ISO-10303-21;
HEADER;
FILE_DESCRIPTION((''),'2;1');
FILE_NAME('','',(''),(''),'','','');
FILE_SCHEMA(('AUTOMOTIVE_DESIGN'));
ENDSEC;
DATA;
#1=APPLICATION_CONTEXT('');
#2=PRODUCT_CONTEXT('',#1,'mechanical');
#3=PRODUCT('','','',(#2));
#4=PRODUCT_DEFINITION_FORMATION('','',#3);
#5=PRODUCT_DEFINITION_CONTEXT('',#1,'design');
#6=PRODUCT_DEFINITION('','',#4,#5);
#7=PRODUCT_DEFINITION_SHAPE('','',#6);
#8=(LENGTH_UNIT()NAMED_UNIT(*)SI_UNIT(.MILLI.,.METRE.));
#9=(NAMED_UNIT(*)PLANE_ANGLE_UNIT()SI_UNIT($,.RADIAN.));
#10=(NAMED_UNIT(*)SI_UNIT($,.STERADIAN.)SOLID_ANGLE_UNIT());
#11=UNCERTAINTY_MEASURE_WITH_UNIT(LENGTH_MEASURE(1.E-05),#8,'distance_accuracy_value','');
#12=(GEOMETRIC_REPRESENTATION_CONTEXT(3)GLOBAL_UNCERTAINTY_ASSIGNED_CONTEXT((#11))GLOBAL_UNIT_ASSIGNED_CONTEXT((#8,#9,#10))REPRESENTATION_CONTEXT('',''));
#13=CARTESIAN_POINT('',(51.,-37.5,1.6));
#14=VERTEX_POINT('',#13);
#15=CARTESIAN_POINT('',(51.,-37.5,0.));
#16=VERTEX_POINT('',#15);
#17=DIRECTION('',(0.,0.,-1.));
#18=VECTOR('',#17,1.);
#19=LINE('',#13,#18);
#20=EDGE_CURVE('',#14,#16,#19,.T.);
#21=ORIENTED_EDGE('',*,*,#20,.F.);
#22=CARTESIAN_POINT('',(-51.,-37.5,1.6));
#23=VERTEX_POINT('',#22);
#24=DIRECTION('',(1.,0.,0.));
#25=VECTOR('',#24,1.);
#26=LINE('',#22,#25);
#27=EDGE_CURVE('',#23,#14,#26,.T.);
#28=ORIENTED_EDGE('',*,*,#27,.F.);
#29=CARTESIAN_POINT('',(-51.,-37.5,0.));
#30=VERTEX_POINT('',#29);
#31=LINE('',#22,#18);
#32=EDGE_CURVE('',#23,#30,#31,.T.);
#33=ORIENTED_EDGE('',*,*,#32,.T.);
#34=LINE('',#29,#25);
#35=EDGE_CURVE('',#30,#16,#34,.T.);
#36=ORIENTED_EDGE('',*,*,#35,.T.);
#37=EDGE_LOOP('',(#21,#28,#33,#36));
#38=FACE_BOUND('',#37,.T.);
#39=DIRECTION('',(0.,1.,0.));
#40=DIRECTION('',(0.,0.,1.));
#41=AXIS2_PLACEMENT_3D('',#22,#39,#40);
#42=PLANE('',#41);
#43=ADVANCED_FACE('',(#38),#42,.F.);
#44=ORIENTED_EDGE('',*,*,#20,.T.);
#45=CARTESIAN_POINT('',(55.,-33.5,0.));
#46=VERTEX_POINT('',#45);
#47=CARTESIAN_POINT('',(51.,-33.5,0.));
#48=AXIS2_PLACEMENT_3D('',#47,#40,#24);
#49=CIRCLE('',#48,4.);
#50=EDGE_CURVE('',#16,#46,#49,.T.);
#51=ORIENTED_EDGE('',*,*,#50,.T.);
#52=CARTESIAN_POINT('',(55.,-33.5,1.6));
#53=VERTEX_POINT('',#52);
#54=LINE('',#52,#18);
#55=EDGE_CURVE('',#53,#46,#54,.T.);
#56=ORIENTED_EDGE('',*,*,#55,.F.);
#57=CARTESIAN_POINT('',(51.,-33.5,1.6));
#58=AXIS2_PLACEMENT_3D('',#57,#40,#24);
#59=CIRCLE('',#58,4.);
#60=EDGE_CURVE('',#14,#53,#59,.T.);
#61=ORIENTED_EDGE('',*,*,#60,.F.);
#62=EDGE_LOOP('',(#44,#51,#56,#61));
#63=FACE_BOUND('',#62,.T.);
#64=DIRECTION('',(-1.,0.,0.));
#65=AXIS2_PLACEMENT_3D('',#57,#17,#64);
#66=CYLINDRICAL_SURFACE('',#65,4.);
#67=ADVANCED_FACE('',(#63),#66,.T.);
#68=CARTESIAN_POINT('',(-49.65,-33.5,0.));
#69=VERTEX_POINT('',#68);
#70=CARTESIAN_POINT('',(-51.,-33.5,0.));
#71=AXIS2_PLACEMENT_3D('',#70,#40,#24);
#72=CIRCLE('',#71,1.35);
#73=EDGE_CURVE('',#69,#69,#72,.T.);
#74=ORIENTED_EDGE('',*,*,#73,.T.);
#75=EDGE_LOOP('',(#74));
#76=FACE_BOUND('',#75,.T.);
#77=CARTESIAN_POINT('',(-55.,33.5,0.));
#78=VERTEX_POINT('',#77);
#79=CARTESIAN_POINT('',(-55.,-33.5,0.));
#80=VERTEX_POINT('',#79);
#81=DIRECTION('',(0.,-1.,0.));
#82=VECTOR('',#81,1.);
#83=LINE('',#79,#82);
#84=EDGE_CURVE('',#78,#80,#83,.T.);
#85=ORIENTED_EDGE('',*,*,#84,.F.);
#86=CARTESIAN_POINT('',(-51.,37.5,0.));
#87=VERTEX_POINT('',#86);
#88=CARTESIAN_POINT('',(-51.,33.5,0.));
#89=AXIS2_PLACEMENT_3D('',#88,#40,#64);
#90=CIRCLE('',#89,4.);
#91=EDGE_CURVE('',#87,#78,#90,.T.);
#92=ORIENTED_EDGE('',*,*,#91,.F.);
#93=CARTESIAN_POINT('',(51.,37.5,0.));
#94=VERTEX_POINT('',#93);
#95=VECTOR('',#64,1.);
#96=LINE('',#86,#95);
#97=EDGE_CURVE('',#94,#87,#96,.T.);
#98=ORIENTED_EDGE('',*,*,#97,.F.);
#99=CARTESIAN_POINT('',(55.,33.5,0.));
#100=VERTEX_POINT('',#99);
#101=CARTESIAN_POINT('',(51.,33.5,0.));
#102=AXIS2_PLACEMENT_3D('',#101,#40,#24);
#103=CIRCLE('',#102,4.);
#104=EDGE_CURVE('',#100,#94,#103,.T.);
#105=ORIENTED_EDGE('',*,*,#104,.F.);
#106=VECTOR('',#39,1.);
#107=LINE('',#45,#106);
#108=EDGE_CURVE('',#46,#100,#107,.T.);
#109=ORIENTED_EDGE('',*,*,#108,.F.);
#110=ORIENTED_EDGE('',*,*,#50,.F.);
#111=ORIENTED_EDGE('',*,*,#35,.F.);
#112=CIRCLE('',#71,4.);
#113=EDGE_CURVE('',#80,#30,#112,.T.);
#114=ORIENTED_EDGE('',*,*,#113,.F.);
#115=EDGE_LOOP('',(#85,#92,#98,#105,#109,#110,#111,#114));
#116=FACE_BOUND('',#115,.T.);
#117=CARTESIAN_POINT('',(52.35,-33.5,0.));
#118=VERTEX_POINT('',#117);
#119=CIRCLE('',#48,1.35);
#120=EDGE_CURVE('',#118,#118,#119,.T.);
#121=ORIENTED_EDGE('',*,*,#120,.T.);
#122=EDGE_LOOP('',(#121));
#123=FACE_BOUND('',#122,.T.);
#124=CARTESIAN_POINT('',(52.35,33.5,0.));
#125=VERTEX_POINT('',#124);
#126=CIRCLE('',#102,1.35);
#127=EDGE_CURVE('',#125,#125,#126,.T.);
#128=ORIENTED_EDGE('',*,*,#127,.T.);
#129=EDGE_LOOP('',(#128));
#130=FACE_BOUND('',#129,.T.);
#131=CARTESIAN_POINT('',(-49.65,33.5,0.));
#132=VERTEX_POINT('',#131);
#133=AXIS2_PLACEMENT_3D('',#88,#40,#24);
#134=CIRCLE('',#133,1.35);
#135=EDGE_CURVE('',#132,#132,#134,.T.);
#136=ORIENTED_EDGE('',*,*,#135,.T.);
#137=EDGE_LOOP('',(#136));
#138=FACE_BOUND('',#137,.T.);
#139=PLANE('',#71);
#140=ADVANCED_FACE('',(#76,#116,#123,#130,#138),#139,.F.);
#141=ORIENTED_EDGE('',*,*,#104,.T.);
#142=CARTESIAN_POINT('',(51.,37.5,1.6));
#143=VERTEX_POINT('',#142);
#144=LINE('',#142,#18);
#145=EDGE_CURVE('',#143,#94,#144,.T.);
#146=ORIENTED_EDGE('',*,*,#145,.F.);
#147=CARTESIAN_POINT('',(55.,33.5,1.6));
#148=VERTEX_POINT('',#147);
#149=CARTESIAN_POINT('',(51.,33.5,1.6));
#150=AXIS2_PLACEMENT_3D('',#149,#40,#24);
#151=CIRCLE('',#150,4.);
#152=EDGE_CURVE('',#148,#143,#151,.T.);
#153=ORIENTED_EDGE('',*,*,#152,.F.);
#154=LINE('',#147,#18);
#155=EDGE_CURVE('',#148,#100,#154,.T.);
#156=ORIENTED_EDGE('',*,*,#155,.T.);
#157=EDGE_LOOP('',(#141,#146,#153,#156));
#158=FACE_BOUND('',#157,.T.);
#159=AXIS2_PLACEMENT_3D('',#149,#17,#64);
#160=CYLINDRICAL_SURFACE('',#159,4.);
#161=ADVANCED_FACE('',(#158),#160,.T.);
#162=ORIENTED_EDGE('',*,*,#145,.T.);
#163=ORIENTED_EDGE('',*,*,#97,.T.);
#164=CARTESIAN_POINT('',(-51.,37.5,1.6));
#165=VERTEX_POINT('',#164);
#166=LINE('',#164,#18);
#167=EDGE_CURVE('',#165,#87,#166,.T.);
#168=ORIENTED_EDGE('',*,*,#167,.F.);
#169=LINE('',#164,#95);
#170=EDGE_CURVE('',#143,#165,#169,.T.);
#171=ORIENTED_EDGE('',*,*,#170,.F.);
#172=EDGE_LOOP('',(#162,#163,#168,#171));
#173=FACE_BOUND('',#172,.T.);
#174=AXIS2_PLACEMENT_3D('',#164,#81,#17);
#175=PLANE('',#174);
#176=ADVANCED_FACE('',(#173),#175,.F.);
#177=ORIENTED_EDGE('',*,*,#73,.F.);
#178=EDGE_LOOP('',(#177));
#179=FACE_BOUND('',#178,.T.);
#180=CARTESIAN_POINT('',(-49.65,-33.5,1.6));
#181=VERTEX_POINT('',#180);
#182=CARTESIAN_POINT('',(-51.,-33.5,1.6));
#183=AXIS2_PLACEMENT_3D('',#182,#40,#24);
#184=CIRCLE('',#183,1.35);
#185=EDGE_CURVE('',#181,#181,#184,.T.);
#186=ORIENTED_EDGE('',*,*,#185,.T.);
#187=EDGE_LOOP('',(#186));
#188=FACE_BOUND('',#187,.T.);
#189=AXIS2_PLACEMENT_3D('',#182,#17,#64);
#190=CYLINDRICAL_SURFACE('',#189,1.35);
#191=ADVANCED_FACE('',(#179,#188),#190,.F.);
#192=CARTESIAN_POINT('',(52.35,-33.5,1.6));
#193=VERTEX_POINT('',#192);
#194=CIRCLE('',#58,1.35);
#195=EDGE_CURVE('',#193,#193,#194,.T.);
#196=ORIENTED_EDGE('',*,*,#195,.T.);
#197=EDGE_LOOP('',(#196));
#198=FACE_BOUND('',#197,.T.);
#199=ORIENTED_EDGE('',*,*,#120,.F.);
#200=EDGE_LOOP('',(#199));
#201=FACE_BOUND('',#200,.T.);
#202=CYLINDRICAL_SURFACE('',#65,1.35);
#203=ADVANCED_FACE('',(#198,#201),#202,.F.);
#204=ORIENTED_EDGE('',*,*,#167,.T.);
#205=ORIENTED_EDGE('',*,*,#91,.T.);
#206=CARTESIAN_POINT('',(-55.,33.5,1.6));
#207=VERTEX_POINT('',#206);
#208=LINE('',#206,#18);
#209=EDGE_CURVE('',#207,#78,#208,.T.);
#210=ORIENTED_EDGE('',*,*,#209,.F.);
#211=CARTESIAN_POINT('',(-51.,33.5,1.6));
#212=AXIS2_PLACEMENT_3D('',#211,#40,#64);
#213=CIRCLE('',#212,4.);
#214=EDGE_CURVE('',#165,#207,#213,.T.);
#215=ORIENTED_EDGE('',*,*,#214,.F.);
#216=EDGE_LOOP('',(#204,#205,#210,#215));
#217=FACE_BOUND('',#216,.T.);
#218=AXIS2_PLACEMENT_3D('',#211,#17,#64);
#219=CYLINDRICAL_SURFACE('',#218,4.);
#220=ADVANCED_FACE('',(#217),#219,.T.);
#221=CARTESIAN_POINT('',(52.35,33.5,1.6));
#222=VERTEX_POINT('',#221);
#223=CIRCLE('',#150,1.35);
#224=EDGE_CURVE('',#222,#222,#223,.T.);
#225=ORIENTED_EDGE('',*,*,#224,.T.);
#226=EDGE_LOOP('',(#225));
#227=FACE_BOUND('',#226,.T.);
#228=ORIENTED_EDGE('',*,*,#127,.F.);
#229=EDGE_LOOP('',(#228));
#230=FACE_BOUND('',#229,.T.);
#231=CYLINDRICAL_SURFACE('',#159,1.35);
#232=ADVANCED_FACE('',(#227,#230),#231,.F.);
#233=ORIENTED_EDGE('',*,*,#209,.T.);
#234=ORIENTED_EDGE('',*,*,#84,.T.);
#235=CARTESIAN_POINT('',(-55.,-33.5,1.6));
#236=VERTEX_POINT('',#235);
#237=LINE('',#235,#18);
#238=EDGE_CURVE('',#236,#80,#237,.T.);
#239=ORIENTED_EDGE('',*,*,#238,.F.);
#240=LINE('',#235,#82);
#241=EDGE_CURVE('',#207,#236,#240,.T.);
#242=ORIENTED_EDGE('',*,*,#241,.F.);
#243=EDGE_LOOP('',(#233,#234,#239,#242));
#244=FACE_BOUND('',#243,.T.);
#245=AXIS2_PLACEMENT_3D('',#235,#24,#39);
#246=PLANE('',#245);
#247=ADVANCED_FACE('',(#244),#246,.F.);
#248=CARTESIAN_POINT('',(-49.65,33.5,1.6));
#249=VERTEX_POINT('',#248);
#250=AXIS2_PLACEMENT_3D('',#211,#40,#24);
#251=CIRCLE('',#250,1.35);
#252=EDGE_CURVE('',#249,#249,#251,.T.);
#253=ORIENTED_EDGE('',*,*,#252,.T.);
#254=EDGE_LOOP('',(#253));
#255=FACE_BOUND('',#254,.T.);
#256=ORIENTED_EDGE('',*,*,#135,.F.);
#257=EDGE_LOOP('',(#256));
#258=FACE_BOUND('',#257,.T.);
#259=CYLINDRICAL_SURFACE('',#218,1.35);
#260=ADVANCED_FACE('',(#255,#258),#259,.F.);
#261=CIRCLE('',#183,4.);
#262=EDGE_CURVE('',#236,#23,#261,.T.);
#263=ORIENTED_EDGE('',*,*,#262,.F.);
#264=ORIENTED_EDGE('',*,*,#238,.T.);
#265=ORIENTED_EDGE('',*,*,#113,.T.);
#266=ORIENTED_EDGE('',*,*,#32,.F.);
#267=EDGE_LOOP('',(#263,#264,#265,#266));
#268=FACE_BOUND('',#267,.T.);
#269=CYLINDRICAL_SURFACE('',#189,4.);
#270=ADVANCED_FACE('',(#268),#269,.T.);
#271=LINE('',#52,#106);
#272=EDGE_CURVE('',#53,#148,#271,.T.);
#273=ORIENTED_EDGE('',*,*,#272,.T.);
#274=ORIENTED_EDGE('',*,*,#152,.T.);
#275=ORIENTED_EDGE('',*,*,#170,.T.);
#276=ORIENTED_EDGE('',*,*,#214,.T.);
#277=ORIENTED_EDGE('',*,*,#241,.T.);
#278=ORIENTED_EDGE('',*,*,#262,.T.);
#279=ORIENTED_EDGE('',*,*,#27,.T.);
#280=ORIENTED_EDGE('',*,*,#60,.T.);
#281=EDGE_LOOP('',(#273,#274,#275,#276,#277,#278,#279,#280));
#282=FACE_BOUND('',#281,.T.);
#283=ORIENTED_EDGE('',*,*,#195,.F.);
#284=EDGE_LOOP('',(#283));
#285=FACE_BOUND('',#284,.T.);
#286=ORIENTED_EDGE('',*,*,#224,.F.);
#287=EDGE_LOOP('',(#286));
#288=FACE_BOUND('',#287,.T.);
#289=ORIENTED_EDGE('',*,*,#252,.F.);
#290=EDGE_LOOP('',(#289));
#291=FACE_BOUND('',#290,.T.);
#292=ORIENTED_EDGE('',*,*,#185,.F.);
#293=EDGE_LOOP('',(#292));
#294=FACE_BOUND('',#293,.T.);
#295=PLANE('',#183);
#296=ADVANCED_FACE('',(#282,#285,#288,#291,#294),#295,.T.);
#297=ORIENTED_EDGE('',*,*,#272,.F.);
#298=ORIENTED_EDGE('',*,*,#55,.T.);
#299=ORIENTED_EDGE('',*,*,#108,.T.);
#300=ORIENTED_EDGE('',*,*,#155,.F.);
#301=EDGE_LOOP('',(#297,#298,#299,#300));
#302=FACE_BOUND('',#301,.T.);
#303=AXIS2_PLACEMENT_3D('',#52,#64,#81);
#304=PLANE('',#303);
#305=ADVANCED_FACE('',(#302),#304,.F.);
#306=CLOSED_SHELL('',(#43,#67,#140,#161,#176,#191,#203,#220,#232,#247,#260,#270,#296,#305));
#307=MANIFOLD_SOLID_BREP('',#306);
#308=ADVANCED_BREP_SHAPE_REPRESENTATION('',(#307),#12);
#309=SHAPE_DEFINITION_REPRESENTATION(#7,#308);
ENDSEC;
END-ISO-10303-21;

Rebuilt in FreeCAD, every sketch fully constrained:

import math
import FreeCAD as App
import Part
import Sketcher
from FreeCAD import Vector

doc = App.newDocument("Part")
body = doc.addObject("PartDesign::Body", "Body")

sketch1 = doc.addObject("Sketcher::SketchObject", "Sketch")
body.addObject(sketch1)
sketch1.AttachmentSupport = (doc.XY_Plane, [""])
sketch1.MapMode = "FlatFace"
sketch1.addGeometry([
    Part.LineSegment(Vector(-51, -37.5, 0), Vector(51, -37.5, 0)),
    Part.ArcOfCircle(Part.Circle(Vector(51, -33.5, 0), Vector(0, 0, 1), 4), math.radians(-90), math.radians(0)),
    Part.LineSegment(Vector(55, -33.5, 0), Vector(55, 33.5, 0)),
    Part.ArcOfCircle(Part.Circle(Vector(51, 33.5, 0), Vector(0, 0, 1), 4), math.radians(0), math.radians(90)),
    Part.LineSegment(Vector(51, 37.5, 0), Vector(-51, 37.5, 0)),
    Part.ArcOfCircle(Part.Circle(Vector(-51, 33.5, 0), Vector(0, 0, 1), 4), math.radians(90), math.radians(180)),
    Part.LineSegment(Vector(-55, 33.5, 0), Vector(-55, -33.5, 0)),
    Part.ArcOfCircle(Part.Circle(Vector(-51, -33.5, 0), Vector(0, 0, 1), 4), math.radians(180), math.radians(270)),
    Part.Circle(Vector(-51, -33.5, 0), Vector(0, 0, 1), 1.4),
    Part.Circle(Vector(51, -33.5, 0), Vector(0, 0, 1), 1.4),
    Part.Circle(Vector(-51, 33.5, 0), Vector(0, 0, 1), 1.4),
    Part.Circle(Vector(51, 33.5, 0), Vector(0, 0, 1), 1.4),
], False)
sketch1.addConstraint([
    Sketcher.Constraint("Tangent", 0, 2, 1, 1),
    Sketcher.Constraint("Tangent", 1, 2, 2, 1),
    Sketcher.Constraint("Tangent", 2, 2, 3, 1),
    Sketcher.Constraint("Tangent", 3, 2, 4, 1),
    Sketcher.Constraint("Tangent", 4, 2, 5, 1),
    Sketcher.Constraint("Tangent", 5, 2, 6, 1),
    Sketcher.Constraint("Tangent", 6, 2, 7, 1),
    Sketcher.Constraint("Tangent", 7, 2, 0, 1),
    Sketcher.Constraint("Horizontal", 0),
    Sketcher.Constraint("Vertical", 2),
    Sketcher.Constraint("Horizontal", 4),
    Sketcher.Constraint("Vertical", 6),
    Sketcher.Constraint("Coincident", 8, 3, 7, 3),
    Sketcher.Constraint("Coincident", 9, 3, 1, 3),
    Sketcher.Constraint("Coincident", 10, 3, 5, 3),
    Sketcher.Constraint("Coincident", 11, 3, 3, 3),
    Sketcher.Constraint("Equal", 1, 3),
    Sketcher.Constraint("Equal", 3, 5),
    Sketcher.Constraint("Equal", 5, 7),
    Sketcher.Constraint("Equal", 8, 9),
    Sketcher.Constraint("Equal", 9, 10),
    Sketcher.Constraint("Equal", 10, 11),
    Sketcher.Constraint("Symmetric", 1, 3, 5, 3, -1, 1),
    Sketcher.Constraint("Radius", 1, 4.0),
    Sketcher.Constraint("Diameter", 8, 2.7),
    Sketcher.Constraint("DistanceX", 0, 1, 0, 2, 102.0),
    Sketcher.Constraint("DistanceY", 2, 1, 2, 2, 67.0),
])
pad1 = doc.addObject("PartDesign::Pad", "Pad")
body.addObject(pad1)
pad1.Profile = sketch1
pad1.Length = 1.6

doc.recompute()
